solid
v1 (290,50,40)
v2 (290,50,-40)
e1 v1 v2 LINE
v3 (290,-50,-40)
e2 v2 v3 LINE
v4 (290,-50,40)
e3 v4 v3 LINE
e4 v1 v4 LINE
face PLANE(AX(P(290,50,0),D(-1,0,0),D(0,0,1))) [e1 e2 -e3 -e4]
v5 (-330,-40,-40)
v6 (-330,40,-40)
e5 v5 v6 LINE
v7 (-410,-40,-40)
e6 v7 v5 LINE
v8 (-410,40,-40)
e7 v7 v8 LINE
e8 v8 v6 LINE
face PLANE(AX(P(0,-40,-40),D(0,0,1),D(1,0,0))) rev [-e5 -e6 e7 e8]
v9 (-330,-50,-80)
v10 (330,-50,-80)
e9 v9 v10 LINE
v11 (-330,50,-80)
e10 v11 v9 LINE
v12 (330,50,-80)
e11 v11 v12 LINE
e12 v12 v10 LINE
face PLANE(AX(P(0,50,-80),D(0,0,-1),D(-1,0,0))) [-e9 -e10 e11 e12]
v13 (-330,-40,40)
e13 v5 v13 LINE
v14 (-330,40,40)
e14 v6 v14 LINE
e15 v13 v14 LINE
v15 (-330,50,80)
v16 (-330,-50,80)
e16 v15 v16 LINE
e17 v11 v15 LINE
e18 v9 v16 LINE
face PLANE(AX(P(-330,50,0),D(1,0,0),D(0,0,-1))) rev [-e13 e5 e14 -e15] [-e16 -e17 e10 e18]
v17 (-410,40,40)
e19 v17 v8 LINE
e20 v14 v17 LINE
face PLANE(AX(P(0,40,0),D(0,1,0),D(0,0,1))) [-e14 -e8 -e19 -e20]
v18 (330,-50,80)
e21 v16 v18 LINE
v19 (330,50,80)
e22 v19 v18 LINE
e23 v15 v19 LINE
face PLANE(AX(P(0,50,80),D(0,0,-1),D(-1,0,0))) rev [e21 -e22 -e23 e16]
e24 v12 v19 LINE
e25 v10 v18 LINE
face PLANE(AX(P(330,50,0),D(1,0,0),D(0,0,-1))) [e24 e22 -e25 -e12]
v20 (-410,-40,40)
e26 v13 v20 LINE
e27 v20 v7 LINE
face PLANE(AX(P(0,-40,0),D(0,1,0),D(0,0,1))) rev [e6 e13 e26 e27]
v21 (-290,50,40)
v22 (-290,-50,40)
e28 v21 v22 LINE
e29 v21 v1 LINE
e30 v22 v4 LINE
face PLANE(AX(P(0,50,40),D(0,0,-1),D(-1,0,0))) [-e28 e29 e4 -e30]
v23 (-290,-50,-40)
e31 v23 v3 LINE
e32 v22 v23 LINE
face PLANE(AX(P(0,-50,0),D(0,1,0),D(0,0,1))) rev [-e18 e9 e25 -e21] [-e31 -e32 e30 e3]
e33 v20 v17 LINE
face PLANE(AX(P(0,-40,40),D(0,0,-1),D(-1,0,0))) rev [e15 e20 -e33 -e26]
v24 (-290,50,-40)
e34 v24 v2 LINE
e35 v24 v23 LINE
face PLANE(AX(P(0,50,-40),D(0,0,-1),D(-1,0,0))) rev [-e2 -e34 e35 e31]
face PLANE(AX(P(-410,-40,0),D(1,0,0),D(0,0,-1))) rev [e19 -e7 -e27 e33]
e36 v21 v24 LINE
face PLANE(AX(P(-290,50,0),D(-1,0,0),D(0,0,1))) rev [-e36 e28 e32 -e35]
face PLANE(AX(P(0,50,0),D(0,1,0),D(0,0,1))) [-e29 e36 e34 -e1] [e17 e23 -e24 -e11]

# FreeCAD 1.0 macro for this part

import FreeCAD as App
import Part
import Sketcher

V = App.Vector
Q = App.Units.Quantity


def add_polygon(sketch, points):
    """Adds a closed chain of lines whose ends are joined by coincident constraints."""
    first, n = sketch.GeometryCount, len(points)
    for a, b in zip(points, points[1:] + points[:1]):
        sketch.addGeometry(Part.LineSegment(App.Vector(*a, 0), App.Vector(*b, 0)), False)
    for i in range(n):
        sketch.addConstraint(Sketcher.Constraint("Coincident", first + i, 2, first + (i + 1) % n, 1))

doc = App.newDocument("Part")
body = doc.addObject("PartDesign::Body", "Body")

sketch1 = doc.addObject("Sketcher::SketchObject", "Sketch")
body.addObject(sketch1)
sketch1.AttachmentSupport = (doc.XZ_Plane, [""])
sketch1.MapMode = "FlatFace"
add_polygon(sketch1, [(-330, -80), (-330, 80), (330, 80), (330, -80)])
add_polygon(sketch1, [(290, 40), (-290, 40), (-290, -40), (290, -40)])
sketch1.addConstraint(Sketcher.Constraint("Vertical", 0))
sketch1.addConstraint(Sketcher.Constraint("Horizontal", 1))
sketch1.addConstraint(Sketcher.Constraint("Vertical", 2))
sketch1.addConstraint(Sketcher.Constraint("Horizontal", 3))
sketch1.addConstraint(Sketcher.Constraint("Horizontal", 4))
sketch1.addConstraint(Sketcher.Constraint("Vertical", 5))
sketch1.addConstraint(Sketcher.Constraint("Horizontal", 6))
sketch1.addConstraint(Sketcher.Constraint("Vertical", 7))
sketch1.addConstraint(Sketcher.Constraint("Symmetric", 0, 2, 2, 2, -1, 1))
sketch1.addConstraint(Sketcher.Constraint("Symmetric", 4, 2, 6, 2, -1, 1))
sketch1.addConstraint(Sketcher.Constraint("DistanceX", 1, 1, 1, 2, Q("660 mm")))
sketch1.addConstraint(Sketcher.Constraint("DistanceX", 4, 2, 4, 1, Q("580 mm")))
sketch1.addConstraint(Sketcher.Constraint("DistanceY", 0, 1, 0, 2, Q("160 mm")))
sketch1.addConstraint(Sketcher.Constraint("DistanceY", 5, 2, 5, 1, Q("80 mm")))
pad1 = doc.addObject("PartDesign::Pad", "Pad")
body.addObject(pad1)
pad1.Profile = sketch1
pad1.Type = "TwoLengths"
pad1.Length = 50
pad1.Length2 = 50
pad1.Reversed = True

sketch2 = doc.addObject("Sketcher::SketchObject", "Sketch001")
body.addObject(sketch2)
sketch2.AttachmentSupport = (doc.XZ_Plane, [""])
sketch2.MapMode = "FlatFace"
add_polygon(sketch2, [(-410, -40), (-410, 40), (-330, 40), (-330, -40)])
sketch2.addConstraint(Sketcher.Constraint("Vertical", 0))
sketch2.addConstraint(Sketcher.Constraint("Horizontal", 1))
sketch2.addConstraint(Sketcher.Constraint("Vertical", 2))
sketch2.addConstraint(Sketcher.Constraint("Horizontal", 3))
sketch2.addConstraint(Sketcher.Constraint("Equal", 3, 0))
sketch2.addConstraint(Sketcher.Constraint("DistanceX", 1, 1, 1, 2, Q("80 mm")))
sketch2.addConstraint(Sketcher.Constraint("DistanceX", 0, 2, -1, 1, Q("410 mm")))
sketch2.addConstraint(Sketcher.Constraint("DistanceY", -1, 1, 0, 2, Q("40 mm")))
pad2 = doc.addObject("PartDesign::Pad", "Pad001")
body.addObject(pad2)
pad2.Profile = sketch2
pad2.Type = "TwoLengths"
pad2.Length = 40
pad2.Length2 = 40
pad2.Reversed = True

doc.recompute()
